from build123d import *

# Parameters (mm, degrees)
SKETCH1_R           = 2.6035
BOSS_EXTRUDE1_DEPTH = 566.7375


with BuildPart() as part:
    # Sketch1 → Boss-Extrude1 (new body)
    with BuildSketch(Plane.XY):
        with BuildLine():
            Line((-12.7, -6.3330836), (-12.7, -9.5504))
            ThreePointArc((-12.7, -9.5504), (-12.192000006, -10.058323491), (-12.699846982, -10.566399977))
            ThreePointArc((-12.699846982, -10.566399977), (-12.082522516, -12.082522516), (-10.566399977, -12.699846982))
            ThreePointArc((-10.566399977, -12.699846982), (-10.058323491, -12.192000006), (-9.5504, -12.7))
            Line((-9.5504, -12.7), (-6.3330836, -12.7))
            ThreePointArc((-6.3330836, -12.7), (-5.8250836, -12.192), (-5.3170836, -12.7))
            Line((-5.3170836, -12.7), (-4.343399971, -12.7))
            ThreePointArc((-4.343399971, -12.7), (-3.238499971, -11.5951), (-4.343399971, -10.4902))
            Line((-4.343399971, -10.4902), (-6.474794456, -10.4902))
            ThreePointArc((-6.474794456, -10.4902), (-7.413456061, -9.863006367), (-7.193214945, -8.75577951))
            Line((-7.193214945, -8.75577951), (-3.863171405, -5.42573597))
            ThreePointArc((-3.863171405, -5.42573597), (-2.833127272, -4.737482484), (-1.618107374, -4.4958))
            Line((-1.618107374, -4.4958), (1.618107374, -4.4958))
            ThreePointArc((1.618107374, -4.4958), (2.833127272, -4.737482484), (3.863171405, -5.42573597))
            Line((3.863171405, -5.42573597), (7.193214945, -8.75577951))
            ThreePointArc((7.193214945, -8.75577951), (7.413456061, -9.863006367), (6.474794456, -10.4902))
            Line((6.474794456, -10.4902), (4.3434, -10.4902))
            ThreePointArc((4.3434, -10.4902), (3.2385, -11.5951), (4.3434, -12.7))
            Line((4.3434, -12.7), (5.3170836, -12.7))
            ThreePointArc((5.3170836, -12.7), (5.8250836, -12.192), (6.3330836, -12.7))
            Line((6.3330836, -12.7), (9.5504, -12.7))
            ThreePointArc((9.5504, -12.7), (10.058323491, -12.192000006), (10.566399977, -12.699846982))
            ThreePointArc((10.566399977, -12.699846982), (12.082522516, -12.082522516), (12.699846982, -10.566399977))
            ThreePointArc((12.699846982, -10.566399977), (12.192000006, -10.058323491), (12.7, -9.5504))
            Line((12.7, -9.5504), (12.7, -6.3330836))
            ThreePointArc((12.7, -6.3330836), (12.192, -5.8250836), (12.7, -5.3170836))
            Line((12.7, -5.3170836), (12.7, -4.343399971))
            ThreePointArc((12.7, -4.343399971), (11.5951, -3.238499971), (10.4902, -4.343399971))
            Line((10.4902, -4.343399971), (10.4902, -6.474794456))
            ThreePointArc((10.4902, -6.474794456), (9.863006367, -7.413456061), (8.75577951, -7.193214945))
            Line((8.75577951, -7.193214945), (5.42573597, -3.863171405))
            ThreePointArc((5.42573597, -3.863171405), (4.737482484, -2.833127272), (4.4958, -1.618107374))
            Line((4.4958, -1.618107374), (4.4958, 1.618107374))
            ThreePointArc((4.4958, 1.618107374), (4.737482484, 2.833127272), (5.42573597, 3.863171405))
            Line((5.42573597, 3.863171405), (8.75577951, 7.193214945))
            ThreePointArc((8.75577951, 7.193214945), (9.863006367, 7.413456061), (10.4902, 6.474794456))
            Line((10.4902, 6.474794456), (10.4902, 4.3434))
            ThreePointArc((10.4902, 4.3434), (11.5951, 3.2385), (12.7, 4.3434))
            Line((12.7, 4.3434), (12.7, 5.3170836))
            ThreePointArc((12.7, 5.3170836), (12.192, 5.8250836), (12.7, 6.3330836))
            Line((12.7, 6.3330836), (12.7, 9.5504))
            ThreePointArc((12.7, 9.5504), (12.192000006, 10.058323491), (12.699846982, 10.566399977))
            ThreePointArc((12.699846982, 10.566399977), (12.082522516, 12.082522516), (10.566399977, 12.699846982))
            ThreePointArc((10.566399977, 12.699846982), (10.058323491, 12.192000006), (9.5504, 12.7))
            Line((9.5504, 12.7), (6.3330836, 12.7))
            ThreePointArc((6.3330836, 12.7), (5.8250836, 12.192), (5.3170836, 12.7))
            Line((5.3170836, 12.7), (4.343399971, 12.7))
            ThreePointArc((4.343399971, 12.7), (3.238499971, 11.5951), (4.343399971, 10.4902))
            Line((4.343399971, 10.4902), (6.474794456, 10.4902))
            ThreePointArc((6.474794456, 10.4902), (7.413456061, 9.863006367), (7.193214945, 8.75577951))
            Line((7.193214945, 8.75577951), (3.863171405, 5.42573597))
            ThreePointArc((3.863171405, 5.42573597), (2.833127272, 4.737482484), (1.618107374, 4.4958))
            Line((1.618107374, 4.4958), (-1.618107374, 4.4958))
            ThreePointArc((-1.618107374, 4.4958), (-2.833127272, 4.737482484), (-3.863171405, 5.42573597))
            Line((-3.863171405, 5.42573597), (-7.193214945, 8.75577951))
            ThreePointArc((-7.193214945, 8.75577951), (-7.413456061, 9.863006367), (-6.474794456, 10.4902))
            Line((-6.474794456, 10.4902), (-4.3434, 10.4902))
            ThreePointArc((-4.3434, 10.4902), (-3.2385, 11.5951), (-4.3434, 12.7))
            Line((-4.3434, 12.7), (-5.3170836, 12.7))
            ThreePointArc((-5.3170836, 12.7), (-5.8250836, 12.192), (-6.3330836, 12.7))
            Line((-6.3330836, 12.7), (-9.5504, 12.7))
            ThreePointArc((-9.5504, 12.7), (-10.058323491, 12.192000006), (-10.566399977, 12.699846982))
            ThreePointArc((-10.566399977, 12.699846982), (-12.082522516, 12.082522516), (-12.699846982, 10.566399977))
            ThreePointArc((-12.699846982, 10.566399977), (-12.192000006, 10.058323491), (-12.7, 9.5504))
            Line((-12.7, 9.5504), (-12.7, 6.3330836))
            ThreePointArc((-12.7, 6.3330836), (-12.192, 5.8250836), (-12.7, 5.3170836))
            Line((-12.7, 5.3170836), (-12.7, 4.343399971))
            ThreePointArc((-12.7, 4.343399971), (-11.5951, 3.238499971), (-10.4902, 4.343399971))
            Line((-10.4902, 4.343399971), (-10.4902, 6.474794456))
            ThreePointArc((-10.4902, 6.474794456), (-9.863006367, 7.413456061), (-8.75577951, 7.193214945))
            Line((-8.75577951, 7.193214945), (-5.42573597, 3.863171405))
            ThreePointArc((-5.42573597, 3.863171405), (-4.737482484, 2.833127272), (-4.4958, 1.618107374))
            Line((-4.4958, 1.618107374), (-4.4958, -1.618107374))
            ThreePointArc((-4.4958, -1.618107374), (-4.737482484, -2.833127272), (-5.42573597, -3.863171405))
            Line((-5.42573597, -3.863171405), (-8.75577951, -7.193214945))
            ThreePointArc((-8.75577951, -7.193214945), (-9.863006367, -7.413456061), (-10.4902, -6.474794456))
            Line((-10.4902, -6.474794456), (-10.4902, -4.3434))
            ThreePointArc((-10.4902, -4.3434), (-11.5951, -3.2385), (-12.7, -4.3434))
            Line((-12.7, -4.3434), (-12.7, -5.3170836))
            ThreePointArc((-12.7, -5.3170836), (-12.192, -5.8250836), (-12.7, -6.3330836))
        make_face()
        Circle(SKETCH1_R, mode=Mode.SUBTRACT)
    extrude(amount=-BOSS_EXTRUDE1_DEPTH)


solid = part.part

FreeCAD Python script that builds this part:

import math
import FreeCAD as App
import Part
import Sketcher
Q = App.Units.Quantity

doc = App.newDocument("Part")
params = doc.addObject("Spreadsheet::Sheet", "Params")
for row, (alias, value) in enumerate([
    ("sketch1_radius", "0.02 in"),
    ("sketch1_radius2", "0.04 in"),
    ("sketch1_diameter", "0.205 in"),
    ("sketch1_radius3", "0.083 in"),
    ("sketch1_radius4", "0.125 in"),
    ("pad1_length", "22.3125 in"),
], start=1):
    params.set(f"A{row}", alias)
    params.set(f"B{row}", "=" + value)
    params.setAlias(f"B{row}", alias)

body = doc.addObject("PartDesign::Body", "Body")

sketch1 = body.newObject("Sketcher::SketchObject", "Sketch")
sketch1.AttachmentSupport = (doc.getObject("XY_Plane"), [""])
sketch1.MapMode = "FlatFace"
sketch1.addGeometry([
    Part.LineSegment(App.Vector(-12.7, -6.3, 0), App.Vector(-12.7, -9.6, 0)),
    Part.ArcOfCircle(Part.Circle(App.Vector(-12.7, -10.1, 0), App.Vector(0, 0, 1), 0.5), math.radians(-90), math.radians(90)),
    Part.ArcOfCircle(Part.Circle(App.Vector(-10.6, -10.6, 0), App.Vector(0, 0, 1), 2.1), math.radians(179), math.radians(271)),
    Part.ArcOfCircle(Part.Circle(App.Vector(-10.1, -12.7, 0), App.Vector(0, 0, 1), 0.5), math.radians(0), math.radians(180)),
    Part.LineSegment(App.Vector(-9.6, -12.7, 0), App.Vector(-6.3, -12.7, 0)),
    Part.ArcOfCircle(Part.Circle(App.Vector(-5.8, -12.7, 0), App.Vector(0, 0, 1), 0.5), math.radians(0), math.radians(180)),
    Part.LineSegment(App.Vector(-5.3, -12.7, 0), App.Vector(-4.3, -12.7, 0)),
    Part.ArcOfCircle(Part.Circle(App.Vector(-4.3, -11.6, 0), App.Vector(0, 0, 1), 1.1), math.radians(-90), math.radians(90)),
    Part.LineSegment(App.Vector(-4.3, -10.5, 0), App.Vector(-6.5, -10.5, 0)),
    Part.ArcOfCircle(Part.Circle(App.Vector(-6.5, -9.5, 0), App.Vector(0, 0, 1), 1), math.radians(135), math.radians(270)),
    Part.LineSegment(App.Vector(-7.2, -8.8, 0), App.Vector(-3.9, -5.4, 0)),
    Part.ArcOfCircle(Part.Circle(App.Vector(-1.6, -7.7, 0), App.Vector(0, 0, 1), 3.2), math.radians(90), math.radians(135)),
    Part.LineSegment(App.Vector(-1.6, -4.5, 0), App.Vector(1.6, -4.5, 0)),
    Part.ArcOfCircle(Part.Circle(App.Vector(1.6, -7.7, 0), App.Vector(0, 0, 1), 3.2), math.radians(45), math.radians(90)),
    Part.LineSegment(App.Vector(3.9, -5.4, 0), App.Vector(7.2, -8.8, 0)),
    Part.ArcOfCircle(Part.Circle(App.Vector(6.5, -9.5, 0), App.Vector(0, 0, 1), 1), math.radians(-90), math.radians(45)),
    Part.LineSegment(App.Vector(6.5, -10.5, 0), App.Vector(4.3, -10.5, 0)),
    Part.ArcOfCircle(Part.Circle(App.Vector(4.3, -11.6, 0), App.Vector(0, 0, 1), 1.1), math.radians(90), math.radians(270)),
    Part.LineSegment(App.Vector(4.3, -12.7, 0), App.Vector(5.3, -12.7, 0)),
    Part.ArcOfCircle(Part.Circle(App.Vector(5.8, -12.7, 0), App.Vector(0, 0, 1), 0.5), math.radians(0), math.radians(180)),
    Part.LineSegment(App.Vector(6.3, -12.7, 0), App.Vector(9.6, -12.7, 0)),
    Part.ArcOfCircle(Part.Circle(App.Vector(10.1, -12.7, 0), App.Vector(0, 0, 1), 0.5), math.radians(0), math.radians(180)),
    Part.ArcOfCircle(Part.Circle(App.Vector(10.6, -10.6, 0), App.Vector(0, 0, 1), 2.1), math.radians(-91), math.radians(1)),
    Part.ArcOfCircle(Part.Circle(App.Vector(12.7, -10.1, 0), App.Vector(0, 0, 1), 0.5), math.radians(90), math.radians(270)),
    Part.LineSegment(App.Vector(12.7, -9.6, 0), App.Vector(12.7, -6.3, 0)),
    Part.ArcOfCircle(Part.Circle(App.Vector(12.7, -5.8, 0), App.Vector(0, 0, 1), 0.5), math.radians(90), math.radians(270)),
    Part.LineSegment(App.Vector(12.7, -5.3, 0), App.Vector(12.7, -4.3, 0)),
    Part.ArcOfCircle(Part.Circle(App.Vector(11.6, -4.3, 0), App.Vector(0, 0, 1), 1.1), math.radians(0), math.radians(180)),
    Part.LineSegment(App.Vector(10.5, -4.3, 0), App.Vector(10.5, -6.5, 0)),
    Part.ArcOfCircle(Part.Circle(App.Vector(9.5, -6.5, 0), App.Vector(0, 0, 1), 1), math.radians(-135), math.radians(0)),
    Part.LineSegment(App.Vector(8.8, -7.2, 0), App.Vector(5.4, -3.9, 0)),
    Part.ArcOfCircle(Part.Circle(App.Vector(7.7, -1.6, 0), App.Vector(0, 0, 1), 3.2), math.radians(180), math.radians(225)),
    Part.LineSegment(App.Vector(4.5, -1.6, 0), App.Vector(4.5, 1.6, 0)),
    Part.ArcOfCircle(Part.Circle(App.Vector(7.7, 1.6, 0), App.Vector(0, 0, 1), 3.2), math.radians(135), math.radians(180)),
    Part.LineSegment(App.Vector(5.4, 3.9, 0), App.Vector(8.8, 7.2, 0)),
    Part.ArcOfCircle(Part.Circle(App.Vector(9.5, 6.5, 0), App.Vector(0, 0, 1), 1), math.radians(0), math.radians(135)),
    Part.LineSegment(App.Vector(10.5, 6.5, 0), App.Vector(10.5, 4.3, 0)),
    Part.ArcOfCircle(Part.Circle(App.Vector(11.6, 4.3, 0), App.Vector(0, 0, 1), 1.1), math.radians(180), math.radians(360)),
    Part.LineSegment(App.Vector(12.7, 4.3, 0), App.Vector(12.7, 5.3, 0)),
    Part.ArcOfCircle(Part.Circle(App.Vector(12.7, 5.8, 0), App.Vector(0, 0, 1), 0.5), math.radians(90), math.radians(270)),
    Part.LineSegment(App.Vector(12.7, 6.3, 0), App.Vector(12.7, 9.6, 0)),
    Part.ArcOfCircle(Part.Circle(App.Vector(12.7, 10.1, 0), App.Vector(0, 0, 1), 0.5), math.radians(90), math.radians(270)),
    Part.ArcOfCircle(Part.Circle(App.Vector(10.6, 10.6, 0), App.Vector(0, 0, 1), 2.1), math.radians(-1), math.radians(91)),
    Part.ArcOfCircle(Part.Circle(App.Vector(10.1, 12.7, 0), App.Vector(0, 0, 1), 0.5), math.radians(180), math.radians(360)),
    Part.LineSegment(App.Vector(9.6, 12.7, 0), App.Vector(6.3, 12.7, 0)),
    Part.ArcOfCircle(Part.Circle(App.Vector(5.8, 12.7, 0), App.Vector(0, 0, 1), 0.5), math.radians(180), math.radians(360)),
    Part.LineSegment(App.Vector(5.3, 12.7, 0), App.Vector(4.3, 12.7, 0)),
    Part.ArcOfCircle(Part.Circle(App.Vector(4.3, 11.6, 0), App.Vector(0, 0, 1), 1.1), math.radians(90), math.radians(270)),
    Part.LineSegment(App.Vector(4.3, 10.5, 0), App.Vector(6.5, 10.5, 0)),
    Part.ArcOfCircle(Part.Circle(App.Vector(6.5, 9.5, 0), App.Vector(0, 0, 1), 1), math.radians(-45), math.radians(90)),
    Part.LineSegment(App.Vector(7.2, 8.8, 0), App.Vector(3.9, 5.4, 0)),
    Part.ArcOfCircle(Part.Circle(App.Vector(1.6, 7.7, 0), App.Vector(0, 0, 1), 3.2), math.radians(-90), math.radians(-45)),
    Part.LineSegment(App.Vector(1.6, 4.5, 0), App.Vector(-1.6, 4.5, 0)),
    Part.ArcOfCircle(Part.Circle(App.Vector(-1.6, 7.7, 0), App.Vector(0, 0, 1), 3.2), math.radians(-135), math.radians(-90)),
    Part.LineSegment(App.Vector(-3.9, 5.4, 0), App.Vector(-7.2, 8.8, 0)),
    Part.ArcOfCircle(Part.Circle(App.Vector(-6.5, 9.5, 0), App.Vector(0, 0, 1), 1), math.radians(90), math.radians(225)),
    Part.LineSegment(App.Vector(-6.5, 10.5, 0), App.Vector(-4.3, 10.5, 0)),
    Part.ArcOfCircle(Part.Circle(App.Vector(-4.3, 11.6, 0), App.Vector(0, 0, 1), 1.1), math.radians(-90), math.radians(90)),
    Part.LineSegment(App.Vector(-4.3, 12.7, 0), App.Vector(-5.3, 12.7, 0)),
    Part.ArcOfCircle(Part.Circle(App.Vector(-5.8, 12.7, 0), App.Vector(0, 0, 1), 0.5), math.radians(180), math.radians(360)),
    Part.LineSegment(App.Vector(-6.3, 12.7, 0), App.Vector(-9.6, 12.7, 0)),
    Part.ArcOfCircle(Part.Circle(App.Vector(-10.1, 12.7, 0), App.Vector(0, 0, 1), 0.5), math.radians(-180), math.radians(0)),
    Part.ArcOfCircle(Part.Circle(App.Vector(-10.6, 10.6, 0), App.Vector(0, 0, 1), 2.1), math.radians(89), math.radians(181)),
    Part.ArcOfCircle(Part.Circle(App.Vector(-12.7, 10.1, 0), App.Vector(0, 0, 1), 0.5), math.radians(-90), math.radians(90)),
    Part.LineSegment(App.Vector(-12.7, 9.6, 0), App.Vector(-12.7, 6.3, 0)),
    Part.ArcOfCircle(Part.Circle(App.Vector(-12.7, 5.8, 0), App.Vector(0, 0, 1), 0.5), math.radians(-90), math.radians(90)),
    Part.LineSegment(App.Vector(-12.7, 5.3, 0), App.Vector(-12.7, 4.3, 0)),
    Part.ArcOfCircle(Part.Circle(App.Vector(-11.6, 4.3, 0), App.Vector(0, 0, 1), 1.1), math.radians(180), math.radians(360)),
    Part.LineSegment(App.Vector(-10.5, 4.3, 0), App.Vector(-10.5, 6.5, 0)),
    Part.ArcOfCircle(Part.Circle(App.Vector(-9.5, 6.5, 0), App.Vector(0, 0, 1), 1), math.radians(45), math.radians(180)),
    Part.LineSegment(App.Vector(-8.8, 7.2, 0), App.Vector(-5.4, 3.9, 0)),
    Part.ArcOfCircle(Part.Circle(App.Vector(-7.7, 1.6, 0), App.Vector(0, 0, 1), 3.2), math.radians(0), math.radians(45)),
    Part.LineSegment(App.Vector(-4.5, 1.6, 0), App.Vector(-4.5, -1.6, 0)),
    Part.ArcOfCircle(Part.Circle(App.Vector(-7.7, -1.6, 0), App.Vector(0, 0, 1), 3.2), math.radians(-45), math.radians(0)),
    Part.LineSegment(App.Vector(-5.4, -3.9, 0), App.Vector(-8.8, -7.2, 0)),
    Part.ArcOfCircle(Part.Circle(App.Vector(-9.5, -6.5, 0), App.Vector(0, 0, 1), 1), math.radians(180), math.radians(315)),
    Part.LineSegment(App.Vector(-10.5, -6.5, 0), App.Vector(-10.5, -4.3, 0)),
    Part.ArcOfCircle(Part.Circle(App.Vector(-11.6, -4.3, 0), App.Vector(0, 0, 1), 1.1), math.radians(0), math.radians(180)),
    Part.LineSegment(App.Vector(-12.7, -4.3, 0), App.Vector(-12.7, -5.3, 0)),
    Part.ArcOfCircle(Part.Circle(App.Vector(-12.7, -5.8, 0), App.Vector(0, 0, 1), 0.5), math.radians(-90), math.radians(90)),
    Part.Circle(App.Vector(0, 0, 0), App.Vector(0, 0, 1), 2.6),
], False)
sketch1.addConstraint([
    Sketcher.Constraint("Coincident", 0, 2, 1, 2),
    Sketcher.Constraint("Coincident", 1, 1, 2, 1),
    Sketcher.Constraint("Coincident", 2, 2, 3, 2),
    Sketcher.Constraint("Coincident", 3, 1, 4, 1),
    Sketcher.Constraint("Coincident", 4, 2, 5, 2),
    Sketcher.Constraint("Coincident", 5, 1, 6, 1),
    Sketcher.Constraint("Tangent", 6, 2, 7, 1),
    Sketcher.Constraint("Tangent", 7, 2, 8, 1),
    Sketcher.Constraint("Tangent", 8, 2, 9, 2),
    Sketcher.Constraint("Tangent", 9, 1, 10, 1),
    Sketcher.Constraint("Tangent", 10, 2, 11, 2),
    Sketcher.Constraint("Tangent", 11, 1, 12, 1),
    Sketcher.Constraint("Tangent", 12, 2, 13, 2),
    Sketcher.Constraint("Tangent", 13, 1, 14, 1),
    Sketcher.Constraint("Tangent", 14, 2, 15, 2),
    Sketcher.Constraint("Tangent", 15, 1, 16, 1),
    Sketcher.Constraint("Tangent", 16, 2, 17, 1),
    Sketcher.Constraint("Tangent", 17, 2, 18, 1),
    Sketcher.Constraint("Coincident", 18, 2, 19, 2),
    Sketcher.Constraint("Coincident", 19, 1, 20, 1),
    Sketcher.Constraint("Coincident", 20, 2, 21, 2),
    Sketcher.Constraint("Coincident", 21, 1, 22, 1),
    Sketcher.Constraint("Coincident", 22, 2, 23, 2),
    Sketcher.Constraint("Coincident", 23, 1, 24, 1),
    Sketcher.Constraint("Coincident", 24, 2, 25, 2),
    Sketcher.Constraint("Coincident", 25, 1, 26, 1),
    Sketcher.Constraint("Tangent", 26, 2, 27, 1),
    Sketcher.Constraint("Tangent", 27, 2, 28, 1),
    Sketcher.Constraint("Tangent", 28, 2, 29, 2),
    Sketcher.Constraint("Tangent", 29, 1, 30, 1),
    Sketcher.Constraint("Tangent", 30, 2, 31, 2),
    Sketcher.Constraint("Tangent", 31, 1, 32, 1),
    Sketcher.Constraint("Tangent", 32, 2, 33, 2),
    Sketcher.Constraint("Tangent", 33, 1, 34, 1),
    Sketcher.Constraint("Tangent", 34, 2, 35, 2),
    Sketcher.Constraint("Tangent", 35, 1, 36, 1),
    Sketcher.Constraint("Tangent", 36, 2, 37, 1),
    Sketcher.Constraint("Tangent", 37, 2, 38, 1),
    Sketcher.Constraint("Coincident", 38, 2, 39, 2),
    Sketcher.Constraint("Coincident", 39, 1, 40, 1),
    Sketcher.Constraint("Coincident", 40, 2, 41, 2),
    Sketcher.Constraint("Coincident", 41, 1, 42, 1),
    Sketcher.Constraint("Coincident", 42, 2, 43, 2),
    Sketcher.Constraint("Coincident", 43, 1, 44, 1),
    Sketcher.Constraint("Coincident", 44, 2, 45, 2),
    Sketcher.Constraint("Coincident", 45, 1, 46, 1),
    Sketcher.Constraint("Tangent", 46, 2, 47, 1),
    Sketcher.Constraint("Tangent", 47, 2, 48, 1),
    Sketcher.Constraint("Tangent", 48, 2, 49, 2),
    Sketcher.Constraint("Tangent", 49, 1, 50, 1),
    Sketcher.Constraint("Tangent", 50, 2, 51, 2),
    Sketcher.Constraint("Tangent", 51, 1, 52, 1),
    Sketcher.Constraint("Tangent", 52, 2, 53, 2),
    Sketcher.Constraint("Tangent", 53, 1, 54, 1),
    Sketcher.Constraint("Tangent", 54, 2, 55, 2),
    Sketcher.Constraint("Tangent", 55, 1, 56, 1),
    Sketcher.Constraint("Tangent", 56, 2, 57, 1),
    Sketcher.Constraint("Tangent", 57, 2, 58, 1),
    Sketcher.Constraint("Coincident", 58, 2, 59, 2),
    Sketcher.Constraint("Coincident", 59, 1, 60, 1),
    Sketcher.Constraint("Coincident", 60, 2, 61, 2),
    Sketcher.Constraint("Coincident", 61, 1, 62, 1),
    Sketcher.Constraint("Coincident", 62, 2, 63, 2),
    Sketcher.Constraint("Coincident", 63, 1, 64, 1),
    Sketcher.Constraint("Coincident", 64, 2, 65, 2),
    Sketcher.Constraint("Coincident", 65, 1, 66, 1),
    Sketcher.Constraint("Tangent", 66, 2, 67, 1),
    Sketcher.Constraint("Tangent", 67, 2, 68, 1),
    Sketcher.Constraint("Tangent", 68, 2, 69, 2),
    Sketcher.Constraint("Tangent", 69, 1, 70, 1),
    Sketcher.Constraint("Tangent", 70, 2, 71, 2),
    Sketcher.Constraint("Tangent", 71, 1, 72, 1),
    Sketcher.Constraint("Tangent", 72, 2, 73, 2),
    Sketcher.Constraint("Tangent", 73, 1, 74, 1),
    Sketcher.Constraint("Tangent", 74, 2, 75, 2),
    Sketcher.Constraint("Tangent", 75, 1, 76, 1),
    Sketcher.Constraint("Tangent", 76, 2, 77, 1),
    Sketcher.Constraint("Tangent", 77, 2, 78, 1),
    Sketcher.Constraint("Coincident", 78, 2, 79, 2),
    Sketcher.Constraint("Coincident", 79, 1, 0, 1),
    Sketcher.Constraint("Vertical", 0),
    Sketcher.Constraint("Horizontal", 4),
    Sketcher.Constraint("Horizontal", 6),
    Sketcher.Constraint("Horizontal", 8),
    Sketcher.Constraint("Horizontal", 12),
    Sketcher.Constraint("Horizontal", 16),
    Sketcher.Constraint("Horizontal", 18),
    Sketcher.Constraint("Horizontal", 20),
    Sketcher.Constraint("Vertical", 24),
    Sketcher.Constraint("Vertical", 26),
    Sketcher.Constraint("Vertical", 28),
    Sketcher.Constraint("Vertical", 32),
    Sketcher.Constraint("Vertical", 36),
    Sketcher.Constraint("Vertical", 38),
    Sketcher.Constraint("Vertical", 40),
    Sketcher.Constraint("Horizontal", 44),
    Sketcher.Constraint("Horizontal", 46),
    Sketcher.Constraint("Horizontal", 48),
    Sketcher.Constraint("Horizontal", 52),
    Sketcher.Constraint("Horizontal", 56),
    Sketcher.Constraint("Horizontal", 58),
    Sketcher.Constraint("Horizontal", 60),
    Sketcher.Constraint("Vertical", 64),
    Sketcher.Constraint("Vertical", 66),
    Sketcher.Constraint("Vertical", 68),
    Sketcher.Constraint("Vertical", 72),
    Sketcher.Constraint("Vertical", 76),
    Sketcher.Constraint("Vertical", 78),
    Sketcher.Constraint("Coincident", 80, 3, -1, 1),
    Sketcher.Constraint("Equal", 1, 3),
    Sketcher.Constraint("Equal", 3, 5),
    Sketcher.Constraint("Equal", 11, 13),
    Sketcher.Constraint("Equal", 9, 15),
    Sketcher.Constraint("Equal", 7, 17),
    Sketcher.Constraint("Equal", 5, 19),
    Sketcher.Constraint("Equal", 19, 21),
    Sketcher.Constraint("Equal", 2, 22),
    Sketcher.Constraint("Equal", 21, 23),
    Sketcher.Constraint("Equal", 23, 25),
    Sketcher.Constraint("Equal", 17, 27),
    Sketcher.Constraint("Equal", 15, 29),
    Sketcher.Constraint("Equal", 13, 31),
    Sketcher.Constraint("Equal", 31, 33),
    Sketcher.Constraint("Equal", 29, 35),
    Sketcher.Constraint("Equal", 27, 37),
    Sketcher.Constraint("Equal", 25, 39),
    Sketcher.Constraint("Equal", 39, 41),
    Sketcher.Constraint("Equal", 22, 42),
    Sketcher.Constraint("Equal", 41, 43),
    Sketcher.Constraint("Equal", 43, 45),
    Sketcher.Constraint("Equal", 37, 47),
    Sketcher.Constraint("Equal", 35, 49),
    Sketcher.Constraint("Equal", 33, 51),
    Sketcher.Constraint("Equal", 51, 53),
    Sketcher.Constraint("Equal", 49, 55),
    Sketcher.Constraint("Equal", 47, 57),
    Sketcher.Constraint("Equal", 45, 59),
    Sketcher.Constraint("Equal", 59, 61),
    Sketcher.Constraint("Equal", 42, 62),
    Sketcher.Constraint("Equal", 61, 63),
    Sketcher.Constraint("Equal", 63, 65),
    Sketcher.Constraint("Equal", 57, 67),
    Sketcher.Constraint("Equal", 55, 69),
    Sketcher.Constraint("Equal", 53, 71),
    Sketcher.Constraint("Equal", 71, 73),
    Sketcher.Constraint("Equal", 69, 75),
    Sketcher.Constraint("Equal", 67, 77),
    Sketcher.Constraint("Equal", 65, 79),
    Sketcher.Constraint("Symmetric", 1, 3, 41, 3, -1, 1),
    Sketcher.Constraint("Symmetric", 2, 3, 42, 3, -1, 1),
    Sketcher.Constraint("Symmetric", 3, 3, 43, 3, -1, 1),
    Sketcher.Constraint("Symmetric", 5, 3, 45, 3, -1, 1),
    Sketcher.Constraint("Symmetric", 7, 3, 47, 3, -1, 1),
    Sketcher.Constraint("Symmetric", 11, 3, 51, 3, -1, 1),
    Sketcher.Constraint("Symmetric", 15, 3, 55, 3, -1, 1),
    Sketcher.Constraint("Symmetric", 19, 3, 59, 3, -1, 1),
    Sketcher.Constraint("Symmetric", 21, 3, 61, 3, -1, 1),
    Sketcher.Constraint("Symmetric", 22, 3, 62, 3, -1, 1),
    Sketcher.Constraint("Symmetric", 23, 3, 63, 3, -1, 1),
    Sketcher.Constraint("Symmetric", 25, 3, 65, 3, -1, 1),
    Sketcher.Constraint("Symmetric", 27, 3, 67, 3, -1, 1),
    Sketcher.Constraint("Symmetric", 31, 3, 71, 3, -1, 1),
    Sketcher.Constraint("Symmetric", 35, 3, 75, 3, -1, 1),
    Sketcher.Constraint("Symmetric", 39, 3, 79, 3, -1, 1),
    Sketcher.Constraint("Symmetric", 9, 3, 15, 3, -2),
    Sketcher.Constraint("Symmetric", 5, 3, 19, 3, -2),
    Sketcher.Constraint("Symmetric", 3, 3, 21, 3, -2),
    Sketcher.Constraint("Symmetric", 2, 3, 22, 3, -2),
    Sketcher.Constraint("Symmetric", 1, 3, 23, 3, -2),
    Sketcher.Constraint("Symmetric", 39, 3, 65, 3, -2),
    Sketcher.Constraint("Symmetric", 37, 3, 67, 3, -2),
    Sketcher.Constraint("Symmetric", 50, 2, 53, 1, -2),
    Sketcher.Constraint("Symmetric", 34, 2, 69, 1, -2),
    Sketcher.Constraint("Symmetric", 30, 2, 73, 1, -2),
    Sketcher.Constraint("Perpendicular", 10, 14),
    Sketcher.Constraint("Parallel", 14, 30),
    Sketcher.Constraint("Perpendicular", 30, 34),
    Sketcher.Constraint("Horizontal", 3, 3, 5, 3),
    Sketcher.Constraint("Horizontal", 27, 3, 77, 3),
    Sketcher.Constraint("Horizontal", 21, 3, 3, 1),
    Sketcher.Constraint("Horizontal", 4, 2, 5, 1),
    Sketcher.Constraint("Horizontal", 18, 2, 19, 1),
    Sketcher.Constraint("Horizontal", 61, 3, 43, 1),
    Sketcher.Constraint("Horizontal", 58, 2, 59, 1),
    Sketcher.Constraint("Vertical", 23, 3, 25, 3),
    Sketcher.Constraint("Vertical", 17, 3, 47, 3),
    Sketcher.Constraint("Vertical", 7, 3, 57, 3),
    Sketcher.Constraint("Vertical", 79, 3, 0, 2),
    Sketcher.Constraint("Vertical", 41, 3, 23, 1),
    Sketcher.Constraint("Vertical", 24, 2, 25, 1),
    Sketcher.Constraint("Vertical", 38, 2, 39, 1),
    Sketcher.Constraint("Vertical", 0, 2, 63, 1),
    Sketcher.Constraint("Equal", 60, 0),
    Sketcher.Constraint("Equal", 58, 26),
    Sketcher.Constraint("Equal", 56, 28),
    Sketcher.Constraint("Equal", 52, 32),
    Sketcher.Constraint("Equal", 14, 30),
    Sketcher.Constraint("Radius", 1, Q("0.02 in")),
    Sketcher.Constraint("Radius", 9, Q("0.04 in")),
    Sketcher.Constraint("Diameter", 80, Q("0.205 in")),
    Sketcher.Constraint("Radius", 2, Q("0.083 in")),
    Sketcher.Constraint("Radius", 11, Q("0.125 in")),
    Sketcher.Constraint("DistanceX", 1, 3, -1, 1, Q("0.5 in")),
    Sketcher.Constraint("DistanceY", 3, 3, -1, 1, Q("0.5 in")),
    Sketcher.Constraint("Radius", 7, Q("0.0435 in")),
    Sketcher.Constraint("DistanceY", 1, 3, -1, 1, Q("0.396 in")),
    Sketcher.Constraint("DistanceX", 2, 3, -1, 1, Q("0.417 in")),
    Sketcher.Constraint("DistanceY", 2, 3, -1, 1, Q("0.417 in")),
    Sketcher.Constraint("DistanceX", 7, 3, -1, 1, Q("0.171 in")),
    Sketcher.Constraint("DistanceY", 11, 3, -1, 1, Q("0.302 in")),
    Sketcher.Constraint("DistanceX", 4, 1, 4, 2, 3.217316),
    Sketcher.Constraint("DistanceX", 8, 2, 8, 1, 2.131394),
])
sketch1.setExpression("Constraints[197]", "Params.sketch1_radius")
sketch1.setExpression("Constraints[198]", "Params.sketch1_radius2")
sketch1.setExpression("Constraints[199]", "Params.sketch1_diameter")
sketch1.setExpression("Constraints[200]", "Params.sketch1_radius3")
sketch1.setExpression("Constraints[201]", "Params.sketch1_radius4")
pad1 = body.newObject("PartDesign::Pad", "Pad")
pad1.Profile = sketch1
pad1.setExpression("Length", "Params.pad1_length")
pad1.Reversed = True

doc.recompute()
